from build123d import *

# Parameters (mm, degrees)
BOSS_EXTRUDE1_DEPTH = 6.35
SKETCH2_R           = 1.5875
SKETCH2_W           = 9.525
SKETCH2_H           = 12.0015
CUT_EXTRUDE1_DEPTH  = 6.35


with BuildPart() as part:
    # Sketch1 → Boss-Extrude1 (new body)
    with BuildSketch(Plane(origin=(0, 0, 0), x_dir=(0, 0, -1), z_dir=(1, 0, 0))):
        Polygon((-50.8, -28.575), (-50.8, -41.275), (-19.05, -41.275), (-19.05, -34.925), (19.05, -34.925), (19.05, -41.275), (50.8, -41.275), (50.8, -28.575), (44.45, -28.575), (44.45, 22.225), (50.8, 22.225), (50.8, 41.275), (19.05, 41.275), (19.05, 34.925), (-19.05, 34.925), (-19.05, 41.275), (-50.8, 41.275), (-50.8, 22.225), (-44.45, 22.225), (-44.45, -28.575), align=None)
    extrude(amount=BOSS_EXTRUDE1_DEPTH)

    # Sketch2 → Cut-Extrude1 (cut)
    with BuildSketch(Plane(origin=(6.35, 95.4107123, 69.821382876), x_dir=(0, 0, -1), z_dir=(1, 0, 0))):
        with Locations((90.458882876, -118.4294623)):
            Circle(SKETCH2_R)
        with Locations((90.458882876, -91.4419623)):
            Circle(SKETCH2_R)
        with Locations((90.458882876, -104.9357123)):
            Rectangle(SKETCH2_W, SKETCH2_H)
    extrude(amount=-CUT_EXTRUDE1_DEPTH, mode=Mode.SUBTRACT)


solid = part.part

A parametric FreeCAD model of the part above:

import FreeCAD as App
import Part
import Sketcher
from FreeCAD import Vector
Q = App.Units.Quantity


def add_polygon(sketch, points):
    """Adds a closed chain of lines whose ends are joined by coincident constraints."""
    first, n = sketch.GeometryCount, len(points)
    for a, b in zip(points, points[1:] + points[:1]):
        sketch.addGeometry(Part.LineSegment(App.Vector(*a, 0), App.Vector(*b, 0)), False)
    for i in range(n):
        sketch.addConstraint(Sketcher.Constraint("Coincident", first + i, 2, first + (i + 1) % n, 1))

doc = App.newDocument("Part")
body = doc.addObject("PartDesign::Body", "Body")

# Sketch on YZ plane
sketch1 = body.newObject("Sketcher::SketchObject", "Sketch")
sketch1.AttachmentSupport = (doc.getObject("YZ_Plane"), [""])
sketch1.MapMode = "FlatFace"
add_polygon(sketch1, [(-29, 51), (-41, 51), (-41, 19), (-35, 19), (-35, -19), (-41, -19), (-41, -51), (-29, -51), (-29, -44), (22, -44), (22, -51), (41, -51), (41, -19), (35, -19), (35, 19), (41, 19), (41, 51), (22, 51), (22, 44), (-29, 44)])  # lines 0-19
sketch1.addConstraint([
    Sketcher.Constraint("Horizontal", 0),
    Sketcher.Constraint("Vertical", 1),
    Sketcher.Constraint("Horizontal", 2),
    Sketcher.Constraint("Vertical", 3),
    Sketcher.Constraint("Horizontal", 4),
    Sketcher.Constraint("Vertical", 5),
    Sketcher.Constraint("Horizontal", 6),
    Sketcher.Constraint("Vertical", 7),
    Sketcher.Constraint("Horizontal", 8),
    Sketcher.Constraint("Vertical", 9),
    Sketcher.Constraint("Horizontal", 10),
    Sketcher.Constraint("Vertical", 11),
    Sketcher.Constraint("Horizontal", 12),
    Sketcher.Constraint("Vertical", 13),
    Sketcher.Constraint("Horizontal", 14),
    Sketcher.Constraint("Vertical", 15),
    Sketcher.Constraint("Horizontal", 16),
    Sketcher.Constraint("Vertical", 17),
    Sketcher.Constraint("Horizontal", 18),
    Sketcher.Constraint("Vertical", 19),
    Sketcher.Constraint("Symmetric", 0, 2, 10, 2, -1, 1),
    Sketcher.Constraint("Symmetric", 2, 2, 12, 2, -1, 1),
    Sketcher.Constraint("Symmetric", 4, 2, 14, 2, -1, 1),
    Sketcher.Constraint("Symmetric", 5, 2, 10, 2, -2),
    Sketcher.Constraint("Symmetric", 9, 2, 16, 2, -1),
    Sketcher.Constraint("Symmetric", 7, 2, 18, 2, -1),
    Sketcher.Constraint("Horizontal", 4, 2, 11, 2),
    Sketcher.Constraint("Equal", 14, 7),
    Sketcher.Constraint("DistanceX", 8, 1, 8, 2, Q("2 in")),
    Sketcher.Constraint("DistanceX", 0, 2, 0, 1, Q("0.5 in")),
    Sketcher.Constraint("DistanceY", 3, 2, 3, 1, Q("1.5 in")),
    Sketcher.Constraint("DistanceY", -1, 1, 0, 2, Q("2 in")),
    Sketcher.Constraint("DistanceY", 7, 2, 3, 2, Q("1 in")),
    Sketcher.Constraint("DistanceX", 3, 2, 10, 2, Q("3 in")),
])
pad1 = body.newObject("PartDesign::Pad", "Pad")
pad1.Profile = sketch1
pad1.Length = Q("0.25 in")

# Sketch on YZ plane
sketch2 = body.newObject("Sketcher::SketchObject", "Sketch001")
sketch2.AttachmentSupport = (doc.getObject("YZ_Plane"), [""])
sketch2.MapMode = "FlatFace"
sketch2.AttachmentOffset = App.Placement(Vector(0, 0, 0.25 * 25.4), App.Rotation())
sketch2.addGeometry(Part.Circle(Vector(-23, -20.6, 0), Vector(0, 0, 1), 1.6), False)  # 0
sketch2.addGeometry(Part.Circle(Vector(4, -20.6, 0), Vector(0, 0, 1), 1.6), False)  # 1
add_polygon(sketch2, [(-3.5, -15.9), (-15.5, -15.9), (-15.5, -25.4), (-3.5, -25.4)])  # lines 2-5
sketch2.addConstraint([
    Sketcher.Constraint("Horizontal", 2),
    Sketcher.Constraint("Vertical", 3),
    Sketcher.Constraint("Horizontal", 4),
    Sketcher.Constraint("Vertical", 5),
    Sketcher.Constraint("Equal", 0, 1),
    Sketcher.Constraint("Horizontal", 0, 3, 1, 3),
    Sketcher.Constraint("Diameter", 0, Q("0.125 in")),
    Sketcher.Constraint("DistanceY", 3, 2, -1, 1, Q("1 in")),
    Sketcher.Constraint("DistanceY", 3, 2, 3, 1, Q("0.375 in")),
    Sketcher.Constraint("DistanceX", 2, 2, 2, 1, Q("0.4725 in")),
    Sketcher.Constraint("DistanceX", 0, 3, -1, 1, Q("0.90625 in")),
    Sketcher.Constraint("DistanceY", 0, 3, -1, 1, Q("0.8125 in")),
    Sketcher.Constraint("DistanceX", -1, 1, 1, 3, Q("0.15625 in")),
    Sketcher.Constraint("DistanceX", 0, 3, 2, 2, Q("0.295 in")),
])
pocket1 = body.newObject("PartDesign::Pocket", "Pocket")
pocket1.Profile = sketch2
pocket1.Length = Q("0.25 in")

doc.recompute()
